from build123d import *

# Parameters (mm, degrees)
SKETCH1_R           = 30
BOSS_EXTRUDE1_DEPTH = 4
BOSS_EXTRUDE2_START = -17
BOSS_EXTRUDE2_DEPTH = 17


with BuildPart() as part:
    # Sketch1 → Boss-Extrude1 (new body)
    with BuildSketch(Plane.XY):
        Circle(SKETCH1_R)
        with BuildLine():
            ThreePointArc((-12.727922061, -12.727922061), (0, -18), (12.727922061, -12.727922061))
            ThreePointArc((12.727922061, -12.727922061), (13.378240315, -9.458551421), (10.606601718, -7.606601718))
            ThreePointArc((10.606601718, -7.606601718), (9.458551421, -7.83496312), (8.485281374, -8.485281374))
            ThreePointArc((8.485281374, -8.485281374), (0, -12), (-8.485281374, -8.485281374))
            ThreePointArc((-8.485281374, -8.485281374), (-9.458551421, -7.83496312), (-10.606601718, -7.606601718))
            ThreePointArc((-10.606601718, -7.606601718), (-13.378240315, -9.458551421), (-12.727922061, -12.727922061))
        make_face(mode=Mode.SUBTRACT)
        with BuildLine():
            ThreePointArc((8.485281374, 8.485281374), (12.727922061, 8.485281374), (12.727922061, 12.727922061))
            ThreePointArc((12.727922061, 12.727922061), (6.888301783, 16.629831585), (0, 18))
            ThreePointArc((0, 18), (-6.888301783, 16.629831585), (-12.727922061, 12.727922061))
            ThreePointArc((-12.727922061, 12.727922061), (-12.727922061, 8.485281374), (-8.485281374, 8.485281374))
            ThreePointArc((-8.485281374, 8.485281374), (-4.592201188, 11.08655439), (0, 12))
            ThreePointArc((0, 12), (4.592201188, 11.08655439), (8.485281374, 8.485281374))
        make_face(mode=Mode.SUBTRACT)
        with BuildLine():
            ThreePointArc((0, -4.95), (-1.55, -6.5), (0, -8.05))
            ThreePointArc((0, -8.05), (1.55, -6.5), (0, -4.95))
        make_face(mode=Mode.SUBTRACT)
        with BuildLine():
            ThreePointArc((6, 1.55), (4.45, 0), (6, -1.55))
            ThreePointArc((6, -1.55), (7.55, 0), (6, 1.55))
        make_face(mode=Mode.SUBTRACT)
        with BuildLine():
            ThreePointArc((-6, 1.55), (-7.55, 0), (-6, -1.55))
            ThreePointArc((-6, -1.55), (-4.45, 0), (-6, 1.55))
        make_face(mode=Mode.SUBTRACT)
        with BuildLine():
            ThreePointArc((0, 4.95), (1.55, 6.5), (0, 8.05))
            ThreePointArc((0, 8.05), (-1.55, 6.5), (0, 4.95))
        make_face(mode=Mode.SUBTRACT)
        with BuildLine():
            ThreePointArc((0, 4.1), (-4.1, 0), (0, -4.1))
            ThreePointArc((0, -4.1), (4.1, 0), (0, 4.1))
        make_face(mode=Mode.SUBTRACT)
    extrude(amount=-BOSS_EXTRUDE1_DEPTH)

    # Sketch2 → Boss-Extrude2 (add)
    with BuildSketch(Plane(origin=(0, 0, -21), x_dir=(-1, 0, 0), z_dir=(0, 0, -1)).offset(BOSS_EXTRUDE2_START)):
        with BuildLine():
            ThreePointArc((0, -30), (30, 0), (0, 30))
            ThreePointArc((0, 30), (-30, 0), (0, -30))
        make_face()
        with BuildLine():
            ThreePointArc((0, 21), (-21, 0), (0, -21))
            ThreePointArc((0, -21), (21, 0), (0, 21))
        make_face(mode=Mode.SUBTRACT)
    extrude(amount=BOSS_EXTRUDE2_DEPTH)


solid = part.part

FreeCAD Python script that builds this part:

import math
import FreeCAD as App
import Part
import Sketcher

V = App.Vector
Q = App.Units.Quantity

doc = App.newDocument("Part")
body = doc.addObject("PartDesign::Body", "Body")

sketch1 = body.newObject("Sketcher::SketchObject", "Sketch")
sketch1.AttachmentSupport = (doc.getObject("XY_Plane"), [""])
sketch1.MapMode = "FlatFace"
sketch1.addGeometry(Part.Circle(V(0, 0, 0), V(0, 0, 1), 30), False)
sketch1.addGeometry(Part.ArcOfCircle(Part.Circle(V(0, 0, 0), V(0, 0, 1), 18), math.radians(-135), math.radians(-45)), False)
sketch1.addGeometry(Part.ArcOfCircle(Part.Circle(V(-10.6, -10.6, 0), V(0, 0, 1), 3), math.radians(90), math.radians(225)), False)
sketch1.addGeometry(Part.ArcOfCircle(Part.Circle(V(-10.6, -10.6, 0), V(0, 0, 1), 3), math.radians(45), math.radians(90)), False)
sketch1.addGeometry(Part.ArcOfCircle(Part.Circle(V(0, 0, 0), V(0, 0, 1), 12), math.radians(-135), math.radians(-45)), False)
sketch1.addGeometry(Part.ArcOfCircle(Part.Circle(V(10.6, -10.6, 0), V(0, 0, 1), 3), math.radians(90), math.radians(135)), False)
sketch1.addGeometry(Part.ArcOfCircle(Part.Circle(V(10.6, -10.6, 0), V(0, 0, 1), 3), math.radians(-45), math.radians(90)), False)
sketch1.addGeometry(Part.Circle(V(0, -6.5, 0), V(0, 0, 1), 1.6), False)
sketch1.addGeometry(Part.Circle(V(-6, 0, 0), V(0, 0, 1), 1.6), False)
sketch1.addGeometry(Part.Circle(V(0, 0, 0), V(0, 0, 1), 4.1), False)
sketch1.addGeometry(Part.Circle(V(6, 0, 0), V(0, 0, 1), 1.6), False)
sketch1.addGeometry(Part.Circle(V(0, 6.5, 0), V(0, 0, 1), 1.6), False)
sketch1.addGeometry(Part.ArcOfCircle(Part.Circle(V(10.6, 10.6, 0), V(0, 0, 1), 3), math.radians(-135), math.radians(45)), False)
sketch1.addGeometry(Part.ArcOfCircle(Part.Circle(V(0, 0, 0), V(0, 0, 1), 12), math.radians(45), math.radians(90)), False)
sketch1.addGeometry(Part.ArcOfCircle(Part.Circle(V(0, 0, 0), V(0, 0, 1), 12), math.radians(90), math.radians(135)), False)
sketch1.addGeometry(Part.ArcOfCircle(Part.Circle(V(-10.6, 10.6, 0), V(0, 0, 1), 3), math.radians(135), math.radians(315)), False)
sketch1.addGeometry(Part.ArcOfCircle(Part.Circle(V(0, 0, 0), V(0, 0, 1), 18), math.radians(90), math.radians(135)), False)
sketch1.addGeometry(Part.ArcOfCircle(Part.Circle(V(0, 0, 0), V(0, 0, 1), 18), math.radians(45), math.radians(90)), False)
sketch1.addConstraint(Sketcher.Constraint("Tangent", 1, 1, 2, 2))
sketch1.addConstraint(Sketcher.Constraint("Tangent", 2, 1, 3, 2))
sketch1.addConstraint(Sketcher.Constraint("Tangent", 3, 1, 4, 1))
sketch1.addConstraint(Sketcher.Constraint("Tangent", 4, 2, 5, 2))
sketch1.addConstraint(Sketcher.Constraint("Tangent", 5, 1, 6, 2))
sketch1.addConstraint(Sketcher.Constraint("Tangent", 6, 1, 1, 2))
sketch1.addConstraint(Sketcher.Constraint("Tangent", 12, 1, 13, 1))
sketch1.addConstraint(Sketcher.Constraint("Tangent", 13, 2, 14, 1))
sketch1.addConstraint(Sketcher.Constraint("Tangent", 14, 2, 15, 2))
sketch1.addConstraint(Sketcher.Constraint("Tangent", 15, 1, 16, 2))
sketch1.addConstraint(Sketcher.Constraint("Tangent", 16, 1, 17, 2))
sketch1.addConstraint(Sketcher.Constraint("Tangent", 17, 1, 12, 2))
sketch1.addConstraint(Sketcher.Constraint("Coincident", 0, 3, -1, 1))
sketch1.addConstraint(Sketcher.Constraint("Coincident", 1, 3, -1, 1))
sketch1.addConstraint(Sketcher.Constraint("Coincident", 4, 3, -1, 1))
sketch1.addConstraint(Sketcher.Constraint("Coincident", 9, 3, -1, 1))
sketch1.addConstraint(Sketcher.Constraint("Coincident", 13, 3, -1, 1))
sketch1.addConstraint(Sketcher.Constraint("Coincident", 16, 3, -1, 1))
sketch1.addConstraint(Sketcher.Constraint("Equal", 2, 3))
sketch1.addConstraint(Sketcher.Constraint("Equal", 3, 5))
sketch1.addConstraint(Sketcher.Constraint("Equal", 7, 8))
sketch1.addConstraint(Sketcher.Constraint("Equal", 8, 10))
sketch1.addConstraint(Sketcher.Constraint("Equal", 10, 11))
sketch1.addConstraint(Sketcher.Constraint("Equal", 6, 12))
sketch1.addConstraint(Sketcher.Constraint("Equal", 4, 13))
sketch1.addConstraint(Sketcher.Constraint("Equal", 13, 14))
sketch1.addConstraint(Sketcher.Constraint("Equal", 12, 15))
sketch1.addConstraint(Sketcher.Constraint("Symmetric", 8, 3, 10, 3, -1, 1))
sketch1.addConstraint(Sketcher.Constraint("Symmetric", 7, 3, 11, 3, -1, 1))
sketch1.addConstraint(Sketcher.Constraint("Symmetric", 2, 1, 5, 1, -2))
sketch1.addConstraint(Sketcher.Constraint("PointOnObject", 7, 3, -2))
sketch1.addConstraint(Sketcher.Constraint("PointOnObject", 8, 3, -1))
sketch1.addConstraint(Sketcher.Constraint("PointOnObject", 13, 2, -2))
sketch1.addConstraint(Sketcher.Constraint("PointOnObject", 16, 1, -2))
sketch1.addConstraint(Sketcher.Constraint("Horizontal", 12, 3, 15, 3))
sketch1.addConstraint(Sketcher.Constraint("Vertical", 6, 3, 12, 3))
sketch1.addConstraint(Sketcher.Constraint("Vertical", 15, 3, 2, 1))
sketch1.addConstraint(Sketcher.Constraint("Diameter", 0, Q("60 mm")))
sketch1.addConstraint(Sketcher.Constraint("Radius", 1, Q("18 mm")))
sketch1.addConstraint(Sketcher.Constraint("Radius", 2, Q("3 mm")))
sketch1.addConstraint(Sketcher.Constraint("Diameter", 7, Q("3.1 mm")))
sketch1.addConstraint(Sketcher.Constraint("Diameter", 9, Q("8.2 mm")))
sketch1.addConstraint(Sketcher.Constraint("DistanceX", 8, 3, -1, 1, Q("6 mm")))
sketch1.addConstraint(Sketcher.Constraint("DistanceY", 7, 3, -1, 1, Q("6.5 mm")))
sketch1.addConstraint(Sketcher.Constraint("DistanceX", 2, 3, -1, 1, Q("10.606602 mm")))
pad1 = body.newObject("PartDesign::Pad", "Pad")
pad1.Profile = sketch1
pad1.Length = 4
pad1.Reversed = True

sketch2 = body.newObject("Sketcher::SketchObject", "Sketch001")
sketch2.AttachmentSupport = (doc.getObject("XY_Plane"), [""])
sketch2.MapMode = "FlatFace"
sketch2.AttachmentOffset = App.Placement(V(0, 0, -4), App.Rotation())
sketch2.addGeometry(Part.Circle(V(0, 0, 0), V(0, 0, 1), 30), False)
sketch2.addGeometry(Part.Circle(V(0, 0, 0), V(0, 0, 1), 21), False)
sketch2.addConstraint(Sketcher.Constraint("Coincident", 0, 3, -1, 1))
sketch2.addConstraint(Sketcher.Constraint("Coincident", 1, 3, -1, 1))
sketch2.addConstraint(Sketcher.Constraint("Diameter", 0, Q("60 mm")))
sketch2.addConstraint(Sketcher.Constraint("Diameter", 1, Q("42 mm")))
pad2 = body.newObject("PartDesign::Pad", "Pad001")
pad2.Profile = sketch2
pad2.Length = 17
pad2.Reversed = True

doc.recompute()
